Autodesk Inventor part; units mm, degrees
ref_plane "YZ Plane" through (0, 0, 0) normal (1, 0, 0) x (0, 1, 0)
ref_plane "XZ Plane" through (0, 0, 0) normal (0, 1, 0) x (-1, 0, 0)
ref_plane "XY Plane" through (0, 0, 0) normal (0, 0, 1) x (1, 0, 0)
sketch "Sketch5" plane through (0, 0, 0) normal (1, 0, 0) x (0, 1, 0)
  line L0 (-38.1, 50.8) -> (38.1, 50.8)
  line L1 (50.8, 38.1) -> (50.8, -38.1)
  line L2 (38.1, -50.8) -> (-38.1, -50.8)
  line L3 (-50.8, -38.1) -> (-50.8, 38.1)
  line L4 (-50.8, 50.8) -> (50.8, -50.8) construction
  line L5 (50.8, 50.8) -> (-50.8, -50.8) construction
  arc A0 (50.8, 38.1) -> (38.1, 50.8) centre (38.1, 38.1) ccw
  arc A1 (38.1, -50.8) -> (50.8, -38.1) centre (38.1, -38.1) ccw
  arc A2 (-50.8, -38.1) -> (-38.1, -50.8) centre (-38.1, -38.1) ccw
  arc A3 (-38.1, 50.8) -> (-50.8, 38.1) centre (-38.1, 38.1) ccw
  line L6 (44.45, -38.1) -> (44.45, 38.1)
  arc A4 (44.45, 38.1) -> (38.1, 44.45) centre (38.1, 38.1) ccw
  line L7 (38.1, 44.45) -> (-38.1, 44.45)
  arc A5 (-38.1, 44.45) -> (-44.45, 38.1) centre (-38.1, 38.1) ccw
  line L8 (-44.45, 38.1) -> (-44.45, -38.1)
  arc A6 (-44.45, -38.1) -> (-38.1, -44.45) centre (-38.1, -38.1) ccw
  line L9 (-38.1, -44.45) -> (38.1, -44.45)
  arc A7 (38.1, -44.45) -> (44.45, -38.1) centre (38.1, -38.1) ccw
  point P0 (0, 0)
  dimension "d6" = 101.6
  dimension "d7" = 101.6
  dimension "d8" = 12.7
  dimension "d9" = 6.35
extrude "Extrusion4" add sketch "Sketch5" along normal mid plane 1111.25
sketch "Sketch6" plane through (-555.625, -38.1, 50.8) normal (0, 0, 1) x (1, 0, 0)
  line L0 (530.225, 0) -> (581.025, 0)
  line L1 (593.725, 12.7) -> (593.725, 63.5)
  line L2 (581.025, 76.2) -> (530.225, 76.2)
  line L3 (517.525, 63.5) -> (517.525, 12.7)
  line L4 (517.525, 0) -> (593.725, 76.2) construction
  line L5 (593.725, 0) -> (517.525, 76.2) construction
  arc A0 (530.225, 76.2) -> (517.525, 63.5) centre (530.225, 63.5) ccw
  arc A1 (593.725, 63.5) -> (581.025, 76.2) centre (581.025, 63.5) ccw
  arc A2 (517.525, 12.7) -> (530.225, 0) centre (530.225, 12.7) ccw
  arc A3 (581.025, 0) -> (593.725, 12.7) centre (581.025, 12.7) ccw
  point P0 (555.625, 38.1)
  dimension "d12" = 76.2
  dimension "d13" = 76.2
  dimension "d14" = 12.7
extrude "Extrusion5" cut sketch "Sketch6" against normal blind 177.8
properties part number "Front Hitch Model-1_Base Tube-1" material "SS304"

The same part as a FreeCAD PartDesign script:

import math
import FreeCAD as App
import Part
import Sketcher
Q = App.Units.Quantity

doc = App.newDocument("Part")
body = doc.addObject("PartDesign::Body", "Body")

# Sketch on YZ plane
sketch1 = doc.addObject("Sketcher::SketchObject", "Sketch")
body.addObject(sketch1)
sketch1.AttachmentSupport = (doc.YZ_Plane, [""])
sketch1.MapMode = "FlatFace"
sketch1.addGeometry([
    Part.LineSegment(App.Vector(38.1, 50.8, 0), App.Vector(-38.1, 50.8, 0)),  # 0
    Part.ArcOfCircle(Part.Circle(App.Vector(-38.1, 38.1, 0), App.Vector(0, 0, 1), 12.7), math.radians(90), math.radians(180)),  # 1
    Part.LineSegment(App.Vector(-50.8, 38.1, 0), App.Vector(-50.8, -38.1, 0)),  # 2
    Part.ArcOfCircle(Part.Circle(App.Vector(-38.1, -38.1, 0), App.Vector(0, 0, 1), 12.7), math.radians(180), math.radians(270)),  # 3
    Part.LineSegment(App.Vector(-38.1, -50.8, 0), App.Vector(38.1, -50.8, 0)),  # 4
    Part.ArcOfCircle(Part.Circle(App.Vector(38.1, -38.1, 0), App.Vector(0, 0, 1), 12.7), math.radians(-90), math.radians(0)),  # 5
    Part.LineSegment(App.Vector(50.8, -38.1, 0), App.Vector(50.8, 38.1, 0)),  # 6
    Part.ArcOfCircle(Part.Circle(App.Vector(38.1, 38.1, 0), App.Vector(0, 0, 1), 12.7), math.radians(0), math.radians(90)),  # 7
    Part.LineSegment(App.Vector(44.45, 38.1, 0), App.Vector(44.45, -38.1, 0)),  # 8
    Part.ArcOfCircle(Part.Circle(App.Vector(38.1, -38.1, 0), App.Vector(0, 0, 1), 6.35), math.radians(-90), math.radians(0)),  # 9
    Part.LineSegment(App.Vector(38.1, -44.45, 0), App.Vector(-38.1, -44.45, 0)),  # 10
    Part.ArcOfCircle(Part.Circle(App.Vector(-38.1, -38.1, 0), App.Vector(0, 0, 1), 6.35), math.radians(180), math.radians(270)),  # 11
    Part.LineSegment(App.Vector(-44.45, -38.1, 0), App.Vector(-44.45, 38.1, 0)),  # 12
    Part.ArcOfCircle(Part.Circle(App.Vector(-38.1, 38.1, 0), App.Vector(0, 0, 1), 6.35), math.radians(90), math.radians(180)),  # 13
    Part.LineSegment(App.Vector(-38.1, 44.45, 0), App.Vector(38.1, 44.45, 0)),  # 14
    Part.ArcOfCircle(Part.Circle(App.Vector(38.1, 38.1, 0), App.Vector(0, 0, 1), 6.35), math.radians(0), math.radians(90)),  # 15
], False)
sketch1.addConstraint([
    Sketcher.Constraint("Tangent", 0, 2, 1, 1),
    Sketcher.Constraint("Tangent", 1, 2, 2, 1),
    Sketcher.Constraint("Tangent", 2, 2, 3, 1),
    Sketcher.Constraint("Tangent", 3, 2, 4, 1),
    Sketcher.Constraint("Tangent", 4, 2, 5, 1),
    Sketcher.Constraint("Tangent", 5, 2, 6, 1),
    Sketcher.Constraint("Tangent", 6, 2, 7, 1),
    Sketcher.Constraint("Tangent", 7, 2, 0, 1),
    Sketcher.Constraint("Tangent", 8, 2, 9, 2),
    Sketcher.Constraint("Tangent", 9, 1, 10, 1),
    Sketcher.Constraint("Tangent", 10, 2, 11, 2),
    Sketcher.Constraint("Tangent", 11, 1, 12, 1),
    Sketcher.Constraint("Tangent", 12, 2, 13, 2),
    Sketcher.Constraint("Tangent", 13, 1, 14, 1),
    Sketcher.Constraint("Tangent", 14, 2, 15, 2),
    Sketcher.Constraint("Tangent", 15, 1, 8, 1),
    Sketcher.Constraint("Horizontal", 0),
    Sketcher.Constraint("Vertical", 2),
    Sketcher.Constraint("Horizontal", 4),
    Sketcher.Constraint("Vertical", 6),
    Sketcher.Constraint("Vertical", 8),
    Sketcher.Constraint("Horizontal", 10),
    Sketcher.Constraint("Vertical", 12),
    Sketcher.Constraint("Horizontal", 14),
    Sketcher.Constraint("Coincident", 9, 3, 5, 3),
    Sketcher.Constraint("Coincident", 11, 3, 3, 3),
    Sketcher.Constraint("Coincident", 13, 3, 1, 3),
    Sketcher.Constraint("Equal", 1, 3),
    Sketcher.Constraint("Equal", 3, 5),
    Sketcher.Constraint("Equal", 5, 7),
    Sketcher.Constraint("Equal", 13, 15),
    Sketcher.Constraint("Symmetric", 1, 3, 5, 3, -1, 1),
    Sketcher.Constraint("Equal", 14, 2),
    Sketcher.Constraint("Radius", 1, Q("0.5 in")),
    Sketcher.Constraint("Radius", 9, Q("0.25 in")),
    Sketcher.Constraint("DistanceX", 0, 2, 0, 1, Q("3 in")),
])
pad1 = doc.addObject("PartDesign::Pad", "Pad")
body.addObject(pad1)
pad1.Profile = sketch1
pad1.Length = Q("43.75 in")
pad1.Midplane = True

# Sketch on XY plane
sketch2 = doc.addObject("Sketcher::SketchObject", "Sketch001")
body.addObject(sketch2)
sketch2.AttachmentSupport = (doc.XY_Plane, [""])
sketch2.MapMode = "FlatFace"
sketch2.AttachmentOffset = App.Placement(App.Vector(0, 0, 2 * 25.4), App.Rotation())
sketch2.addGeometry([
    Part.ArcOfCircle(Part.Circle(App.Vector(-25.4, -25.4, 0), App.Vector(0, 0, 1), 12.7), math.radians(180), math.radians(270)),  # 0
    Part.LineSegment(App.Vector(-25.4, -38.1, 0), App.Vector(25.4, -38.1, 0)),  # 1
    Part.ArcOfCircle(Part.Circle(App.Vector(25.4, -25.4, 0), App.Vector(0, 0, 1), 12.7), math.radians(-90), math.radians(0)),  # 2
    Part.LineSegment(App.Vector(38.1, -25.4, 0), App.Vector(38.1, 25.4, 0)),  # 3
    Part.ArcOfCircle(Part.Circle(App.Vector(25.4, 25.4, 0), App.Vector(0, 0, 1), 12.7), math.radians(0), math.radians(90)),  # 4
    Part.LineSegment(App.Vector(25.4, 38.1, 0), App.Vector(-25.4, 38.1, 0)),  # 5
    Part.ArcOfCircle(Part.Circle(App.Vector(-25.4, 25.4, 0), App.Vector(0, 0, 1), 12.7), math.radians(90), math.radians(180)),  # 6
    Part.LineSegment(App.Vector(-38.1, 25.4, 0), App.Vector(-38.1, -25.4, 0)),  # 7
], False)
sketch2.addConstraint([
    Sketcher.Constraint("Tangent", 0, 2, 1, 1),
    Sketcher.Constraint("Tangent", 1, 2, 2, 1),
    Sketcher.Constraint("Tangent", 2, 2, 3, 1),
    Sketcher.Constraint("Tangent", 3, 2, 4, 1),
    Sketcher.Constraint("Tangent", 4, 2, 5, 1),
    Sketcher.Constraint("Tangent", 5, 2, 6, 1),
    Sketcher.Constraint("Tangent", 6, 2, 7, 1),
    Sketcher.Constraint("Tangent", 7, 2, 0, 1),
    Sketcher.Constraint("Horizontal", 1),
    Sketcher.Constraint("Vertical", 3),
    Sketcher.Constraint("Horizontal", 5),
    Sketcher.Constraint("Vertical", 7),
    Sketcher.Constraint("Equal", 0, 2),
    Sketcher.Constraint("Equal", 2, 4),
    Sketcher.Constraint("Equal", 4, 6),
    Sketcher.Constraint("Symmetric", 0, 3, 4, 3, -1, 1),
    Sketcher.Constraint("Equal", 5, 3),
    Sketcher.Constraint("Radius", 0, Q("0.5 in")),
    Sketcher.Constraint("DistanceX", 1, 1, 1, 2, Q("2 in")),
])
pocket1 = doc.addObject("PartDesign::Pocket", "Pocket")
body.addObject(pocket1)
pocket1.Profile = sketch2
pocket1.Length = Q("7 in")

doc.recompute()
